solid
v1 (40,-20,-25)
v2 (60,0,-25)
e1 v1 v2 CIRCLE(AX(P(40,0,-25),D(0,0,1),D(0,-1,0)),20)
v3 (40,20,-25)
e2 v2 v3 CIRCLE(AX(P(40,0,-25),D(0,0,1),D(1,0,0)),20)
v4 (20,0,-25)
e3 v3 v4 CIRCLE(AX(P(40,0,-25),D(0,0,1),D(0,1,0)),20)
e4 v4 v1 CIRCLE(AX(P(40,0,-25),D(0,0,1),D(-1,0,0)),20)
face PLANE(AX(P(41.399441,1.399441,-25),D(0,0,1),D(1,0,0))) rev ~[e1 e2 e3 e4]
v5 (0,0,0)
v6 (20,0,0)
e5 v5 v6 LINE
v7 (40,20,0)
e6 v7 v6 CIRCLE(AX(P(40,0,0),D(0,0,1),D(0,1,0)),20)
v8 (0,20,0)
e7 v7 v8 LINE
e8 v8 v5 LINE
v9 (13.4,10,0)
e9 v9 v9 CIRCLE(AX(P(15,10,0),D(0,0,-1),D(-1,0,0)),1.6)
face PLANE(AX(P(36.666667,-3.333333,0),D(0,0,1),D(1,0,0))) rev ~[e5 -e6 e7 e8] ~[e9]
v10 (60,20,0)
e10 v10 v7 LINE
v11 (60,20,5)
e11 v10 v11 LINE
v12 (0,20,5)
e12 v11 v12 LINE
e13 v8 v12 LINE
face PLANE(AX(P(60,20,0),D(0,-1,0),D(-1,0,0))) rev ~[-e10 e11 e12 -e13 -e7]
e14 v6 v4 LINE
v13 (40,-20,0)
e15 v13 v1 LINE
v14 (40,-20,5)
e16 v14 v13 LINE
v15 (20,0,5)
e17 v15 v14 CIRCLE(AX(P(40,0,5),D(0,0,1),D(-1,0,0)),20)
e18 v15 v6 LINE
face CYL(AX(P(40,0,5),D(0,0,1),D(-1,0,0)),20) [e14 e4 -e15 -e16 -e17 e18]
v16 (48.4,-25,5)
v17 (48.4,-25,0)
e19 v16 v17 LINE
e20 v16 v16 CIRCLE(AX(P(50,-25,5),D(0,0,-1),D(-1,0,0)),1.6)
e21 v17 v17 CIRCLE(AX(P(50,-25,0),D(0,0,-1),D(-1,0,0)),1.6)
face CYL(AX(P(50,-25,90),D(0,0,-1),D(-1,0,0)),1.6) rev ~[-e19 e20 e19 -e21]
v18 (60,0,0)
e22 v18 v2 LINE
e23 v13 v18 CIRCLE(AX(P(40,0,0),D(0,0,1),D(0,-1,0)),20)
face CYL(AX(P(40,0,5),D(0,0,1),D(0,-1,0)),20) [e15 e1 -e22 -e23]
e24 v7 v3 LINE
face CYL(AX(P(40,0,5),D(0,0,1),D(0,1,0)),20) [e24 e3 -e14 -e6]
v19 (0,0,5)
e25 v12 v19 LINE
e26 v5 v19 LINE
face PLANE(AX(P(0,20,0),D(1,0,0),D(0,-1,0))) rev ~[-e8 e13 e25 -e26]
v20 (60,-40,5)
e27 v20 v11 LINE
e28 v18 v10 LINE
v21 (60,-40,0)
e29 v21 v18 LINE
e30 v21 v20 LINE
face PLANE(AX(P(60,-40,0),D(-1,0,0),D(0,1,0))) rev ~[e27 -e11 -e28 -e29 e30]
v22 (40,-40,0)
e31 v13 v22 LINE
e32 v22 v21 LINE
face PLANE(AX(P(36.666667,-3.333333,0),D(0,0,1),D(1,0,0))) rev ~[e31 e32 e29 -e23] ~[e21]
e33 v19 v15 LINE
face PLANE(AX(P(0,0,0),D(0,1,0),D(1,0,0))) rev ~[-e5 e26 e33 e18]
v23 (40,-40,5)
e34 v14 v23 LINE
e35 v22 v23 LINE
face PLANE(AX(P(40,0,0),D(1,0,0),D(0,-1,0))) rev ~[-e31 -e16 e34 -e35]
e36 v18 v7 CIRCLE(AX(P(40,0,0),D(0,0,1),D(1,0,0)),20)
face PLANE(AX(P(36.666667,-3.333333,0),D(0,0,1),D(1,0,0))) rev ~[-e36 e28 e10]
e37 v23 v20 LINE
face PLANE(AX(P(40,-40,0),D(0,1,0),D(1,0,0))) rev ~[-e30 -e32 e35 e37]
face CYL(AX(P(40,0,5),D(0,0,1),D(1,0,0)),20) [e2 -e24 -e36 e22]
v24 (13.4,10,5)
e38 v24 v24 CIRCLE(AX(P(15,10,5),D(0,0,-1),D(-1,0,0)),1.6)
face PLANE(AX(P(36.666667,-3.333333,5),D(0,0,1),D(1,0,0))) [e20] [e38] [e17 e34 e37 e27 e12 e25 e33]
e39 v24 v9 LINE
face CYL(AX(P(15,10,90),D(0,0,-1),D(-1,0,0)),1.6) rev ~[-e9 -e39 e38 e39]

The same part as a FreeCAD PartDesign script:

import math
import FreeCAD as App
import Part
import Sketcher
from FreeCAD import Vector
Q = App.Units.Quantity

doc = App.newDocument("Part")
params = doc.addObject("Spreadsheet::Sheet", "Params")
for row, (alias, value) in enumerate([
    ("sketch1_width", "40 mm"),
    ("sketch1_width2", "20 mm"),
    ("pad1_length", "5 mm"),
    ("sketch2_diameter", "3.2 mm"),
    ("hole_diameter", "3.2 mm"),
    ("sketch3_radius", "20 mm"),
    ("pad2_length", "30 mm"),
], start=1):
    params.set(f"A{row}", alias)
    params.set(f"B{row}", "=" + value)
    params.setAlias(f"B{row}", alias)

body = doc.addObject("PartDesign::Body", "Body")

sketch1 = body.newObject("Sketcher::SketchObject", "Sketch")
sketch1.AttachmentSupport = (doc.getObject("XY_Plane"), [""])
sketch1.MapMode = "FlatFace"
sketch1.addGeometry([
    Part.LineSegment(Vector(0, 20, 0), Vector(0, 0, 0)),
    Part.LineSegment(Vector(0, 0, 0), Vector(40, 0, 0)),
    Part.LineSegment(Vector(40, 0, 0), Vector(40, -40, 0)),
    Part.LineSegment(Vector(40, -40, 0), Vector(60, -40, 0)),
    Part.LineSegment(Vector(60, -40, 0), Vector(60, 20, 0)),
    Part.LineSegment(Vector(60, 20, 0), Vector(0, 20, 0)),
], False)
sketch1.addConstraint([
    Sketcher.Constraint("Coincident", 0, 2, 1, 1),
    Sketcher.Constraint("Coincident", 1, 2, 2, 1),
    Sketcher.Constraint("Coincident", 2, 2, 3, 1),
    Sketcher.Constraint("Coincident", 3, 2, 4, 1),
    Sketcher.Constraint("Coincident", 4, 2, 5, 1),
    Sketcher.Constraint("Coincident", 5, 2, 0, 1),
    Sketcher.Constraint("Vertical", 0),
    Sketcher.Constraint("Horizontal", 1),
    Sketcher.Constraint("Vertical", 2),
    Sketcher.Constraint("Horizontal", 3),
    Sketcher.Constraint("Vertical", 4),
    Sketcher.Constraint("Horizontal", 5),
    Sketcher.Constraint("Coincident", 0, 2, -1, 1),
    Sketcher.Constraint("Equal", 3, 0),
    Sketcher.Constraint("Equal", 1, 2),
    Sketcher.Constraint("DistanceX", 1, 1, 1, 2, Q("40 mm")),
    Sketcher.Constraint("DistanceX", 3, 1, 3, 2, Q("20 mm")),
])
sketch1.setExpression("Constraints[15]", "Params.sketch1_width")
sketch1.setExpression("Constraints[16]", "Params.sketch1_width2")
pad1 = body.newObject("PartDesign::Pad", "Pad")
pad1.Profile = sketch1
pad1.setExpression("Length", "Params.pad1_length")

sketch2 = body.newObject("Sketcher::SketchObject", "Sketch001")
sketch2.AttachmentSupport = (doc.getObject("XY_Plane"), [""])
sketch2.MapMode = "FlatFace"
sketch2.AttachmentOffset = App.Placement(Vector(0, 0, 5), App.Rotation())
sketch2.addGeometry([
    Part.Circle(Vector(15, 10, 0), Vector(0, 0, 1), 1.6),
    Part.Circle(Vector(50, -25, 0), Vector(0, 0, 1), 1.6),
], False)
sketch2.addConstraint([
    Sketcher.Constraint("Equal", 0, 1),
    Sketcher.Constraint("Diameter", 0, Q("3.2 mm")),
    Sketcher.Constraint("DistanceX", -1, 1, 0, 3, Q("15 mm")),
    Sketcher.Constraint("DistanceY", -1, 1, 0, 3, Q("10 mm")),
    Sketcher.Constraint("DistanceX", -1, 1, 1, 3, Q("50 mm")),
    Sketcher.Constraint("DistanceY", 1, 3, -1, 1, Q("25 mm")),
])
sketch2.setExpression("Constraints[1]", "Params.sketch2_diameter")
doc.recompute()
hole = body.newObject("PartDesign::Hole", "Hole")
hole.Profile = sketch2
hole.ThreadType = "None"
hole.setExpression("Diameter", "Params.hole_diameter")
hole.DepthType = "ThroughAll"

sketch3 = body.newObject("Sketcher::SketchObject", "Sketch002")
sketch3.AttachmentSupport = (doc.getObject("XY_Plane"), [""])
sketch3.MapMode = "FlatFace"
sketch3.AttachmentOffset = App.Placement(Vector(0, 0, 5), App.Rotation())
sketch3.addGeometry([
    Part.ArcOfCircle(Part.Circle(Vector(40, 0, 0), Vector(0, 0, 1), 20), math.radians(-90), math.radians(0)),
    Part.ArcOfCircle(Part.Circle(Vector(40, 0, 0), Vector(0, 0, 1), 20), math.radians(0), math.radians(90)),
    Part.ArcOfCircle(Part.Circle(Vector(40, 0, 0), Vector(0, 0, 1), 20), math.radians(90), math.radians(180)),
    Part.ArcOfCircle(Part.Circle(Vector(40, 0, 0), Vector(0, 0, 1), 20), math.radians(180), math.radians(270)),
], False)
sketch3.addConstraint([
    Sketcher.Constraint("Tangent", 0, 2, 1, 1),
    Sketcher.Constraint("Tangent", 1, 2, 2, 1),
    Sketcher.Constraint("Tangent", 2, 2, 3, 1),
    Sketcher.Constraint("Tangent", 3, 2, 0, 1),
    Sketcher.Constraint("Equal", 0, 1),
    Sketcher.Constraint("Symmetric", 1, 2, 3, 2, -1),
    Sketcher.Constraint("PointOnObject", 0, 2, -1),
    Sketcher.Constraint("PointOnObject", 2, 2, -1),
    Sketcher.Constraint("Vertical", 3, 3, 1, 2),
    Sketcher.Constraint("Radius", 0, Q("20 mm")),
    Sketcher.Constraint("DistanceX", -1, 1, 0, 3, Q("40 mm")),
])
sketch3.setExpression("Constraints[9]", "Params.sketch3_radius")
pad2 = body.newObject("PartDesign::Pad", "Pad001")
pad2.Profile = sketch3
pad2.setExpression("Length", "Params.pad2_length")
pad2.Reversed = True

doc.recompute()
